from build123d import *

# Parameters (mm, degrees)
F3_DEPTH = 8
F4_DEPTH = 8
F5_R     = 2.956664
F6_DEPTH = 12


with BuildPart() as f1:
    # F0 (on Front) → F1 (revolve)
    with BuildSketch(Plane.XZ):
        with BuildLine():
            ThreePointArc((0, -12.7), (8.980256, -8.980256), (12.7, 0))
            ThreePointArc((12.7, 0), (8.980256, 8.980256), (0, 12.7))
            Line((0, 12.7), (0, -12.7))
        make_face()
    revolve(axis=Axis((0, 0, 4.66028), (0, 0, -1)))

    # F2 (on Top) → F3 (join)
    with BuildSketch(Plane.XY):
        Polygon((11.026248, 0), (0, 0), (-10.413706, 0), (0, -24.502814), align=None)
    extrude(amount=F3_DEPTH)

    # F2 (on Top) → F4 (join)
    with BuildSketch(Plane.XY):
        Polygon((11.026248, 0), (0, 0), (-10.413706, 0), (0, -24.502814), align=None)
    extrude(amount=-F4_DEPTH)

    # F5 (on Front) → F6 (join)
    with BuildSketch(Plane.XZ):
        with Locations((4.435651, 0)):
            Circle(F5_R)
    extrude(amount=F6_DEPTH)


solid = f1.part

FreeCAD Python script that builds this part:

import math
import FreeCAD as App
import Part
import Sketcher


def add_polygon(sketch, points):
    """Adds a closed chain of lines whose ends are joined by coincident constraints."""
    first, n = sketch.GeometryCount, len(points)
    for a, b in zip(points, points[1:] + points[:1]):
        sketch.addGeometry(Part.LineSegment(App.Vector(*a, 0), App.Vector(*b, 0)), False)
    for i in range(n):
        sketch.addConstraint(Sketcher.Constraint("Coincident", first + i, 2, first + (i + 1) % n, 1))

doc = App.newDocument("Part")
body = doc.addObject("PartDesign::Body", "Body")

sketch1 = body.newObject("Sketcher::SketchObject", "Sketch")
sketch1.AttachmentSupport = (doc.getObject("XZ_Plane"), [""])
sketch1.MapMode = "FlatFace"
sketch1.addGeometry([
    Part.ArcOfCircle(Part.Circle(App.Vector(0, 0, 0), App.Vector(0, 0, 1), 12.7), math.radians(-89.999998), math.radians(-0.000002)),
    Part.ArcOfCircle(Part.Circle(App.Vector(0, 0, 0), App.Vector(0, 0, 1), 12.7), math.radians(0.000002), math.radians(89.999998)),
    Part.LineSegment(App.Vector(0, 12.7, 0), App.Vector(0, -12.7, 0)),
], False)
sketch1.addConstraint([
    Sketcher.Constraint("Tangent", 0, 2, 1, 1),
    Sketcher.Constraint("Coincident", 1, 2, 2, 1),
    Sketcher.Constraint("Coincident", 2, 2, 0, 1),
    Sketcher.Constraint("Vertical", 2),
    Sketcher.Constraint("Coincident", 0, 3, -1, 1),
    Sketcher.Constraint("Equal", 0, 1),
    Sketcher.Constraint("PointOnObject", 0, 2, -1),
    Sketcher.Constraint("PointOnObject", 1, 2, -2),
    Sketcher.Constraint("Radius", 0, 12.7),
])
revolution = body.newObject("PartDesign::Revolution", "Revolution")
revolution.Profile = sketch1
revolution.ReferenceAxis = (sketch1, ["V_Axis"])
revolution.Angle = 360

sketch2 = body.newObject("Sketcher::SketchObject", "Sketch001")
sketch2.AttachmentSupport = (doc.getObject("XY_Plane"), [""])
sketch2.MapMode = "FlatFace"
add_polygon(sketch2, [(11.026248, 0), (-10.413706, 0), (0, -24.502814)])
sketch2.addConstraint([
    Sketcher.Constraint("Horizontal", 0),
    Sketcher.Constraint("PointOnObject", 0, 2, -1),
    Sketcher.Constraint("PointOnObject", 1, 2, -2),
    Sketcher.Constraint("Distance", 1, 26.623921),
    Sketcher.Constraint("DistanceX", 0, 2, 0, 1, 21.439954),
    Sketcher.Constraint("DistanceX", -1, 1, 2, 2, 11.026248),
])
pad1 = body.newObject("PartDesign::Pad", "Pad")
pad1.Profile = sketch2
pad1.Length = 8

sketch3 = body.newObject("Sketcher::SketchObject", "Sketch002")
sketch3.AttachmentSupport = (doc.getObject("XY_Plane"), [""])
sketch3.MapMode = "FlatFace"
add_polygon(sketch3, [(11.026248, 0), (-10.413706, 0), (0, -24.502814)])
sketch3.addConstraint([
    Sketcher.Constraint("Horizontal", 0),
    Sketcher.Constraint("PointOnObject", 0, 2, -1),
    Sketcher.Constraint("PointOnObject", 1, 2, -2),
    Sketcher.Constraint("Distance", 1, 26.623921),
    Sketcher.Constraint("DistanceX", 0, 2, 0, 1, 21.439954),
    Sketcher.Constraint("DistanceX", -1, 1, 2, 2, 11.026248),
])
pad2 = body.newObject("PartDesign::Pad", "Pad001")
pad2.Profile = sketch3
pad2.Length = 8
pad2.Reversed = True

sketch4 = body.newObject("Sketcher::SketchObject", "Sketch003")
sketch4.AttachmentSupport = (doc.getObject("XZ_Plane"), [""])
sketch4.MapMode = "FlatFace"
sketch4.addGeometry(Part.Circle(App.Vector(4.435651, 0, 0), App.Vector(0, 0, 1), 2.956664), False)
sketch4.addConstraint([
    Sketcher.Constraint("PointOnObject", 0, 3, -1),
    Sketcher.Constraint("Diameter", 0, 5.913328),
    Sketcher.Constraint("DistanceX", -1, 1, 0, 3, 4.435651),
])
pad3 = body.newObject("PartDesign::Pad", "Pad002")
pad3.Profile = sketch4
pad3.Length = 12

doc.recompute()
